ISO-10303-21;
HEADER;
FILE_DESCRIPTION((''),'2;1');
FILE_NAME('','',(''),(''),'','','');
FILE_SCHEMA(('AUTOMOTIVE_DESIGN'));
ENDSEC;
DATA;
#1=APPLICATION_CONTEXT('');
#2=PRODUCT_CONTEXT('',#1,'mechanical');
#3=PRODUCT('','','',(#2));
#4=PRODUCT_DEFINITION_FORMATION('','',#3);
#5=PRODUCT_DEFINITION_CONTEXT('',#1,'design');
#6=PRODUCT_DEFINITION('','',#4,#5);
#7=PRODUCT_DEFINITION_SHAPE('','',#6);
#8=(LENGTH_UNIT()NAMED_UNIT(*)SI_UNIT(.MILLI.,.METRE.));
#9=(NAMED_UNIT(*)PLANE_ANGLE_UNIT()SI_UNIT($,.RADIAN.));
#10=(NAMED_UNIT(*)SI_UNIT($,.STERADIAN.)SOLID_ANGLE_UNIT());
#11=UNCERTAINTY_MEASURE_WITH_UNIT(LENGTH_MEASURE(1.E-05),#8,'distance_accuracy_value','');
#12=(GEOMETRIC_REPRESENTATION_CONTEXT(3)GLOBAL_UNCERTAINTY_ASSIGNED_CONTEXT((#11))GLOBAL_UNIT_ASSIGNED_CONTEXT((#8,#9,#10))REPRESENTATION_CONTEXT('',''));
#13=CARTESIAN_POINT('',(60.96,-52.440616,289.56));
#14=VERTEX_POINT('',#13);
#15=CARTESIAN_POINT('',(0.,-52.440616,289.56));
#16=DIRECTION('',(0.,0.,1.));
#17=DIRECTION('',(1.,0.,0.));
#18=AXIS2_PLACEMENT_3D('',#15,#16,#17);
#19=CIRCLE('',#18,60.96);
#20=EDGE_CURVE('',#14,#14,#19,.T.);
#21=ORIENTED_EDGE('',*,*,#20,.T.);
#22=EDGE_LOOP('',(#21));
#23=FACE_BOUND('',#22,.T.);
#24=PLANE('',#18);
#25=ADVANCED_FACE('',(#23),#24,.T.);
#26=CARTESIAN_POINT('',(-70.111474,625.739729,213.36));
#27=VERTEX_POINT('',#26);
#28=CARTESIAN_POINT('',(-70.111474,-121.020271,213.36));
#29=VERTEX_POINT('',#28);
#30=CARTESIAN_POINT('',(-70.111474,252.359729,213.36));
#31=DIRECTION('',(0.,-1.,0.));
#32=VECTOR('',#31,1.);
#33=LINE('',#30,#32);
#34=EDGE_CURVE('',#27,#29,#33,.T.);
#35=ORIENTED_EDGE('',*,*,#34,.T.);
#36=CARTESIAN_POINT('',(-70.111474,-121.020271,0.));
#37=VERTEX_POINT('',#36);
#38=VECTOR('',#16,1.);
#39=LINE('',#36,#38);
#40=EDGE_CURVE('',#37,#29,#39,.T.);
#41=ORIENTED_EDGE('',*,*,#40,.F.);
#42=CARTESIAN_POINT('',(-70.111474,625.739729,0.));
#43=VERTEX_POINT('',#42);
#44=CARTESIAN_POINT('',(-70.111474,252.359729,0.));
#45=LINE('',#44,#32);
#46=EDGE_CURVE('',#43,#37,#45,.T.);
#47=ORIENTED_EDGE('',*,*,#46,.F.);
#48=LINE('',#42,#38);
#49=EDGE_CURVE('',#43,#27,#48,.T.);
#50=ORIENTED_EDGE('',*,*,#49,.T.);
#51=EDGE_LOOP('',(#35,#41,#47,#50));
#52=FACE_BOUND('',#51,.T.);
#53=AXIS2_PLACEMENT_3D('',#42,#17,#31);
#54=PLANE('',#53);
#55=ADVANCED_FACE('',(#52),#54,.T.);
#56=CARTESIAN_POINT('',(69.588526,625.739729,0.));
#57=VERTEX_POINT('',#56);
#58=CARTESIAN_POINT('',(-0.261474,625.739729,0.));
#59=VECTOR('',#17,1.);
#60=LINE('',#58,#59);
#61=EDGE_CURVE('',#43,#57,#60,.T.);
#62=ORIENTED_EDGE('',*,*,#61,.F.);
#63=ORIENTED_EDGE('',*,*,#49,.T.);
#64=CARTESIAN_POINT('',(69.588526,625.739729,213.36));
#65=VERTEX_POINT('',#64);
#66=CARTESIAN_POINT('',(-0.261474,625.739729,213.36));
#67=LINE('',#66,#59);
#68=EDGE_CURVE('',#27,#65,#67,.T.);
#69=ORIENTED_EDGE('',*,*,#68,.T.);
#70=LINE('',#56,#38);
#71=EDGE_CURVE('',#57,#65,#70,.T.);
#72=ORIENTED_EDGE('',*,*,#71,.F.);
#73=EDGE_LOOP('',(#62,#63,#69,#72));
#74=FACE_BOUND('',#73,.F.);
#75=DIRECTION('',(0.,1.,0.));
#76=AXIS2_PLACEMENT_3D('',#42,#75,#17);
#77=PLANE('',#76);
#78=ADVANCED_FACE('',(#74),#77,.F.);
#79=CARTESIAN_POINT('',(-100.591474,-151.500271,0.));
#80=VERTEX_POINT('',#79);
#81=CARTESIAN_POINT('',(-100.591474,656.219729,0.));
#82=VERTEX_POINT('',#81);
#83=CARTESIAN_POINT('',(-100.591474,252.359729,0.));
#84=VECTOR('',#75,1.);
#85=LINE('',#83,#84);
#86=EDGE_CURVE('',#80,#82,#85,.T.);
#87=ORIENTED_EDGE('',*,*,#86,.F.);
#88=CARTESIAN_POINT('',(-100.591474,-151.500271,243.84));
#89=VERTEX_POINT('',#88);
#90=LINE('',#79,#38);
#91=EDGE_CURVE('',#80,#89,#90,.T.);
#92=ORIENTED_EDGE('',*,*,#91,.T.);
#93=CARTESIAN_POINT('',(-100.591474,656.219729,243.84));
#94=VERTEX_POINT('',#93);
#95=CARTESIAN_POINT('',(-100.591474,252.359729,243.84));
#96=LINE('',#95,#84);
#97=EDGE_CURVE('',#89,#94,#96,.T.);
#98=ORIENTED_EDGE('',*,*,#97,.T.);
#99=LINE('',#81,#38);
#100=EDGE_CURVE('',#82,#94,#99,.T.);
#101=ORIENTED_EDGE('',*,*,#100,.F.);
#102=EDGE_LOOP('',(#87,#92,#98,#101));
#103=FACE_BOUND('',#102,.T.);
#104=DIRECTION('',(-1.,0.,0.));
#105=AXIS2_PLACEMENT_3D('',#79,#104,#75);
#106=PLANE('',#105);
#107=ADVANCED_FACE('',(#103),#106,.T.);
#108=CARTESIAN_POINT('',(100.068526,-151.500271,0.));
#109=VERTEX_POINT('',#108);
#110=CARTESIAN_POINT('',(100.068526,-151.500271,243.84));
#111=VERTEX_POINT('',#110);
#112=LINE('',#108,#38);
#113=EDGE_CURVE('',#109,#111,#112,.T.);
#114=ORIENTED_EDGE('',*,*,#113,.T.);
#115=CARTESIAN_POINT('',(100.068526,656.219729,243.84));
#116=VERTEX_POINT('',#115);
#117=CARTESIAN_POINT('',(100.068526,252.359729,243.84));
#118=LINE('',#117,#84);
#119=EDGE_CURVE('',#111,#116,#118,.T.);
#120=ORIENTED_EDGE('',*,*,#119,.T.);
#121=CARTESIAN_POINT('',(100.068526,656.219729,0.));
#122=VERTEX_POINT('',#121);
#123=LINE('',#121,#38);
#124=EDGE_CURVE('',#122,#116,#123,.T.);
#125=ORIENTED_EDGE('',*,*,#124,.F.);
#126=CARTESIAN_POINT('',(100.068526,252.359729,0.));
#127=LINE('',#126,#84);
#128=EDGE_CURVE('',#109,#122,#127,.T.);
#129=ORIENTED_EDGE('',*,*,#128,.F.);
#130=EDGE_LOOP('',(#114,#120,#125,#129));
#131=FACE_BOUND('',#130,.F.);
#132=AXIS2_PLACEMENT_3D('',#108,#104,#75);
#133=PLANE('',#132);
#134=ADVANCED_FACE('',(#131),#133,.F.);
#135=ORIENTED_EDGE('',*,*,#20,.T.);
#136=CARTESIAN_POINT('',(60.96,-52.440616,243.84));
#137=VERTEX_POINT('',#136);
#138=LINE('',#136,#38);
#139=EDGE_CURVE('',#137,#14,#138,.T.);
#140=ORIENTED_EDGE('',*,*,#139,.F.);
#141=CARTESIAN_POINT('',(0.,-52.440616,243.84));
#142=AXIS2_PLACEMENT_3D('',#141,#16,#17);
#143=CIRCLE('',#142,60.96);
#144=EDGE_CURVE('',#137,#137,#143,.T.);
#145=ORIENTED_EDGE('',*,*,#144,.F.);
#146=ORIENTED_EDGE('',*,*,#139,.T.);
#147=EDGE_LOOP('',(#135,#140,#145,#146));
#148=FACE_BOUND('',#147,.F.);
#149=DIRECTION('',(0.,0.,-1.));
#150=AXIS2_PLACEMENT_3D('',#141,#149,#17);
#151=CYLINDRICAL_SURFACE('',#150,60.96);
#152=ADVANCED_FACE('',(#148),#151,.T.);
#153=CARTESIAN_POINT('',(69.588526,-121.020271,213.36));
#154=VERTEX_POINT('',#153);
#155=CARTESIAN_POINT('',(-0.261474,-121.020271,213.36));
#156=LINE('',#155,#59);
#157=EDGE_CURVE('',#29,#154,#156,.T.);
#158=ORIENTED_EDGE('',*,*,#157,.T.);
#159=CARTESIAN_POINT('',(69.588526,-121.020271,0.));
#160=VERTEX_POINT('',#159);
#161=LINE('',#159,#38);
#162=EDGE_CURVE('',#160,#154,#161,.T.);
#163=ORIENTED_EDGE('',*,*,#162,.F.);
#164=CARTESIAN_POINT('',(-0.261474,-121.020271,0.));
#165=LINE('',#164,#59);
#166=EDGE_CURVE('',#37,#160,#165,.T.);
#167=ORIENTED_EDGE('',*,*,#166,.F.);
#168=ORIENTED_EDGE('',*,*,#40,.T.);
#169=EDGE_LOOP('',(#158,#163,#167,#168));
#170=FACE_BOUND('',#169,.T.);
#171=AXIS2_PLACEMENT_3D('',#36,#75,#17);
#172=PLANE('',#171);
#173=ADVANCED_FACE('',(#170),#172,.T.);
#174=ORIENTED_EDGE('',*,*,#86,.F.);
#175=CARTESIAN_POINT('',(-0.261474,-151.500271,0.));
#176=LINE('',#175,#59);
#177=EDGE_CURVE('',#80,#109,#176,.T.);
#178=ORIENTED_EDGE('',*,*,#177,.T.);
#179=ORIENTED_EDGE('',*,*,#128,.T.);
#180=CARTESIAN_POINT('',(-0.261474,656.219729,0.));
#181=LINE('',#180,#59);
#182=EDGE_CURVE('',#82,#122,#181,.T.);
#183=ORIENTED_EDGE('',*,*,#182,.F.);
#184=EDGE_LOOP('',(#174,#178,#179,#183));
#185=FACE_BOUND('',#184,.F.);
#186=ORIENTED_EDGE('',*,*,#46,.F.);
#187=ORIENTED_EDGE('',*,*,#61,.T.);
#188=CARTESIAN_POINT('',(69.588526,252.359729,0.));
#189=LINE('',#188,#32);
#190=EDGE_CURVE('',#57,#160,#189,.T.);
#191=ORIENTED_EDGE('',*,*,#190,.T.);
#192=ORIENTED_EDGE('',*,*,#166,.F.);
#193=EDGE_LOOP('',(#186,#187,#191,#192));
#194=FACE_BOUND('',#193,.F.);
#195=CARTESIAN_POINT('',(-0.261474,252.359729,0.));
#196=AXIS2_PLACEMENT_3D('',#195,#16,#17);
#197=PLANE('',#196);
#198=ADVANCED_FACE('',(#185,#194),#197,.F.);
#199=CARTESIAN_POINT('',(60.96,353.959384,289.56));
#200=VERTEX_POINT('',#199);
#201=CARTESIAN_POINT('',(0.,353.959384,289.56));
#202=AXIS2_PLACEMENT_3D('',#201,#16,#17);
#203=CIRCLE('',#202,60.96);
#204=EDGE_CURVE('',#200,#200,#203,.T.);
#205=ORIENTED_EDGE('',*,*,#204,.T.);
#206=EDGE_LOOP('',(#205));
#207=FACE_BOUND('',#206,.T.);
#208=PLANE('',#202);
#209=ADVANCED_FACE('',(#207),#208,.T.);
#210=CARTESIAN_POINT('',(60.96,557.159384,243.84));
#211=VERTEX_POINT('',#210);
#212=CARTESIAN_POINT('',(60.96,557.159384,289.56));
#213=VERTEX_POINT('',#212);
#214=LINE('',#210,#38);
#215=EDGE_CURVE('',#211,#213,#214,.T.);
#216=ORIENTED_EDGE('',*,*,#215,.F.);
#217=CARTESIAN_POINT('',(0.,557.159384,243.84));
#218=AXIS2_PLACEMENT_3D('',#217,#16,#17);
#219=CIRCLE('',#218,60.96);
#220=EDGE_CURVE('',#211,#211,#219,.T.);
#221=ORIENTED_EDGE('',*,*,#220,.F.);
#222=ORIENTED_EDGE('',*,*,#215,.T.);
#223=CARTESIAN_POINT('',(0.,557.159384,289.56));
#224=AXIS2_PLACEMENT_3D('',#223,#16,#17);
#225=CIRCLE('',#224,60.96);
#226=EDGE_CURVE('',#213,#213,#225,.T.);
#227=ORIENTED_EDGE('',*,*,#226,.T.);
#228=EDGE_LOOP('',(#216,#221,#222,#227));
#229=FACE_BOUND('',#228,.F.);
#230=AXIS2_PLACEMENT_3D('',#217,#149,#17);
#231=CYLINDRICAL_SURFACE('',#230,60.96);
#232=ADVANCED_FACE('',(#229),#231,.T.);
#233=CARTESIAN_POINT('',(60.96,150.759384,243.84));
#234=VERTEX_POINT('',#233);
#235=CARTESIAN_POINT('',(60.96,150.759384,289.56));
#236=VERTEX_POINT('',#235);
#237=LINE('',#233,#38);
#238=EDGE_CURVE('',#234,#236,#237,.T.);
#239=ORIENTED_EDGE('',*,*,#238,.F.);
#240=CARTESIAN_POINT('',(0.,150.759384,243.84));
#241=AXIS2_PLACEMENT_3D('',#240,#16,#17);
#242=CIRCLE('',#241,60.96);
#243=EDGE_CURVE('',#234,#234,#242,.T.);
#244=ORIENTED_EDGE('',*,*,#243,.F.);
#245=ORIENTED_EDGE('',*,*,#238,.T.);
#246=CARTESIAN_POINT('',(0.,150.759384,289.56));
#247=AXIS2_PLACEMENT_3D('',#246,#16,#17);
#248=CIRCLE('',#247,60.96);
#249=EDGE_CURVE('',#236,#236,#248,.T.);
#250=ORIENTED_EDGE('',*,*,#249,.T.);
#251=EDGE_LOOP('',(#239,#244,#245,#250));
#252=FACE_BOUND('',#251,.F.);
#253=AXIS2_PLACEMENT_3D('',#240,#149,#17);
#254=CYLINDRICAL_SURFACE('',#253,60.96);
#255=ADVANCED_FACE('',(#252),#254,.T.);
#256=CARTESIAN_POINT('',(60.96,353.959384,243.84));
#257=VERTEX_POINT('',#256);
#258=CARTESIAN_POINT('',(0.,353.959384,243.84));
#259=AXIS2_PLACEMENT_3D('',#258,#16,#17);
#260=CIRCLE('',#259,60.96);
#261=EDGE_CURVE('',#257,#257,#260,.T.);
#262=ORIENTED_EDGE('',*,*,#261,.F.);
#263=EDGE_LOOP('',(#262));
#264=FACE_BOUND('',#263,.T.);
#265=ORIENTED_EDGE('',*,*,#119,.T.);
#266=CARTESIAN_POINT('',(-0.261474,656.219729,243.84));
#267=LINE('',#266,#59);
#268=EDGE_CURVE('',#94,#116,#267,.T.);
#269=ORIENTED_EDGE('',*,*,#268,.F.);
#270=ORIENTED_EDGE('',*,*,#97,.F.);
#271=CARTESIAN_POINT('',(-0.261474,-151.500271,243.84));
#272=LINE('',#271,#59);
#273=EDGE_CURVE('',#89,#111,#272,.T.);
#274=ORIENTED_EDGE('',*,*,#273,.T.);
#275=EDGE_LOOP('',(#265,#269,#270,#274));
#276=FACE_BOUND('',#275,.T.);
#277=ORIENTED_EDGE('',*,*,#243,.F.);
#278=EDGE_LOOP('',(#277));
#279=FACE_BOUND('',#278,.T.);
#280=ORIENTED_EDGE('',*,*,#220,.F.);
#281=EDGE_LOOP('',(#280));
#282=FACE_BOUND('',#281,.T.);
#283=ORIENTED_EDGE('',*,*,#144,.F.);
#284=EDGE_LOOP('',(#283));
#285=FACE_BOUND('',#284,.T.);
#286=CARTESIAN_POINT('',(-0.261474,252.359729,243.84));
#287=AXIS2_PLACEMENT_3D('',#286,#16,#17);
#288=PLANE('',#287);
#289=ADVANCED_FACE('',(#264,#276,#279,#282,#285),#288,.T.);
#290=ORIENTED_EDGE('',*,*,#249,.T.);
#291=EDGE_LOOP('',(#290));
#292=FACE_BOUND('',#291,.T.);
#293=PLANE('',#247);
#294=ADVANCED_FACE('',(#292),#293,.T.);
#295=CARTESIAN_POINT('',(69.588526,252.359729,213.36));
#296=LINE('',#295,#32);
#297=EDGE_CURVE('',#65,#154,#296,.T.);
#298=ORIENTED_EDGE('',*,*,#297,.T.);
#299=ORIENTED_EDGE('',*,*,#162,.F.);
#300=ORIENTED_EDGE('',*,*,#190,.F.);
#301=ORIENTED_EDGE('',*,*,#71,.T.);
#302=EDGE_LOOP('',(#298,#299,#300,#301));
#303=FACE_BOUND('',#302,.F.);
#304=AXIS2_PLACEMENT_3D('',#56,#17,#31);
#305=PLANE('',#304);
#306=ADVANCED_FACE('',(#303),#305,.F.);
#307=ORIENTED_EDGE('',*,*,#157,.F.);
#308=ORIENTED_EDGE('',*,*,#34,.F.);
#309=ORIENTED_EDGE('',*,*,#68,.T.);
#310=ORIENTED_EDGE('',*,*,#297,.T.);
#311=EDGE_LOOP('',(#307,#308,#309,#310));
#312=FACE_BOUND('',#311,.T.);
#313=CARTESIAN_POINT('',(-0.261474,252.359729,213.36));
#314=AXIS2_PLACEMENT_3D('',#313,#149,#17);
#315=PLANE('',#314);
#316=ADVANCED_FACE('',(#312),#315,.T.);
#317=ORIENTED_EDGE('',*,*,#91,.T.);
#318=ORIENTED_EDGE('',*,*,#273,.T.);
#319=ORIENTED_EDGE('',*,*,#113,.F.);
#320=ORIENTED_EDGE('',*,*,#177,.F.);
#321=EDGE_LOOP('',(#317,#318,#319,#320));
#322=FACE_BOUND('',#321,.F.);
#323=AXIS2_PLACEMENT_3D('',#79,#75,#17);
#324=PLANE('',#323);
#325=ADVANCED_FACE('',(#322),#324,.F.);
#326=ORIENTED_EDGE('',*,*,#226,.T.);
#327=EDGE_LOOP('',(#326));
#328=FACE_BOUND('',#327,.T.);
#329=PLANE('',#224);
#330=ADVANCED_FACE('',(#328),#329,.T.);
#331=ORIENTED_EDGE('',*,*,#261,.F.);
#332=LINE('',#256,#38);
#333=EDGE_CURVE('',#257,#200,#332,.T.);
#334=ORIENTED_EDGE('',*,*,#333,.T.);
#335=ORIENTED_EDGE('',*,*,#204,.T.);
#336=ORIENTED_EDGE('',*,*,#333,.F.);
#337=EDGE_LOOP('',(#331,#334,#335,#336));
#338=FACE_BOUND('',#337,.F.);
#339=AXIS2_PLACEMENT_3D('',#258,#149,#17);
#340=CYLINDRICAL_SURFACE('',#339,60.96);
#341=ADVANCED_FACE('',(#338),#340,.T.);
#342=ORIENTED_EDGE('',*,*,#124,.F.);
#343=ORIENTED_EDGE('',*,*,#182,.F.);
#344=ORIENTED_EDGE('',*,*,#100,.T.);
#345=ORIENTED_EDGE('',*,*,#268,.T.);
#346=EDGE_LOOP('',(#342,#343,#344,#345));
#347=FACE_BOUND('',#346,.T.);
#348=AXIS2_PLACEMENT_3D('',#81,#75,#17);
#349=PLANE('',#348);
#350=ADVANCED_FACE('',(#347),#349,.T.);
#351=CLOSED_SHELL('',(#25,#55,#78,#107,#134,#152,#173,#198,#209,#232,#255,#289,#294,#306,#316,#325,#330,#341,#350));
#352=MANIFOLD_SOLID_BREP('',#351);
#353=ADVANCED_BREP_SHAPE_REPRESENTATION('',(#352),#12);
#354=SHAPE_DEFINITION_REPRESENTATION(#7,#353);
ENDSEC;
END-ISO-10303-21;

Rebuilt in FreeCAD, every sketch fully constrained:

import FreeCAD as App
import Part
import Sketcher
from FreeCAD import Vector
Q = App.Units.Quantity


def add_polygon(sketch, points):
    """Adds a closed chain of lines whose ends are joined by coincident constraints."""
    first, n = sketch.GeometryCount, len(points)
    for a, b in zip(points, points[1:] + points[:1]):
        sketch.addGeometry(Part.LineSegment(App.Vector(*a, 0), App.Vector(*b, 0)), False)
    for i in range(n):
        sketch.addConstraint(Sketcher.Constraint("Coincident", first + i, 2, first + (i + 1) % n, 1))

doc = App.newDocument("Part")
body = doc.addObject("PartDesign::Body", "Body")

# Sketch on XY plane
sketch1 = body.newObject("Sketcher::SketchObject", "Sketch")
sketch1.AttachmentSupport = (doc.getObject("XY_Plane"), [""])
sketch1.MapMode = "FlatFace"
add_polygon(sketch1, [(-101, 656), (-101, -152), (100, -152), (100, 656)])  # lines 0-3
sketch1.addConstraint(Sketcher.Constraint("Vertical", 0))
sketch1.addConstraint(Sketcher.Constraint("Horizontal", 1))
sketch1.addConstraint(Sketcher.Constraint("Vertical", 2))
sketch1.addConstraint(Sketcher.Constraint("Horizontal", 3))
sketch1.addConstraint(Sketcher.Constraint("DistanceX", 1, 1, 1, 2, Q("7.9 in")))
sketch1.addConstraint(Sketcher.Constraint("DistanceY", 0, 2, 0, 1, Q("31.8 in")))
sketch1.addConstraint(Sketcher.Constraint("DistanceY", 0, 2, -1, 1, 151.500271))
sketch1.addConstraint(Sketcher.Constraint("DistanceX", 0, 2, -1, 1, 100.591474))
pad1 = body.newObject("PartDesign::Pad", "Pad")
pad1.Profile = sketch1
pad1.Length = Q("9.6 in")

# Sketch on XY plane
sketch2 = body.newObject("Sketcher::SketchObject", "Sketch001")
sketch2.AttachmentSupport = (doc.getObject("XY_Plane"), [""])
sketch2.MapMode = "FlatFace"
sketch2.AttachmentOffset = App.Placement(Vector(0, 0, 9.6 * 25.4), App.Rotation())
sketch2.addGeometry(Part.Circle(Vector(0, -52, 0), Vector(0, 0, 1), 61), False)
sketch2.addGeometry(Part.Circle(Vector(0, 151, 0), Vector(0, 0, 1), 61), False)
sketch2.addGeometry(Part.Circle(Vector(0, 354, 0), Vector(0, 0, 1), 61), False)
sketch2.addGeometry(Part.Circle(Vector(0, 557, 0), Vector(0, 0, 1), 61), False)
sketch2.addConstraint(Sketcher.Constraint("Equal", 0, 1))
sketch2.addConstraint(Sketcher.Constraint("Equal", 1, 2))
sketch2.addConstraint(Sketcher.Constraint("Equal", 2, 3))
sketch2.addConstraint(Sketcher.Constraint("PointOnObject", 0, 3, -2))
sketch2.addConstraint(Sketcher.Constraint("PointOnObject", 1, 3, -2))
sketch2.addConstraint(Sketcher.Constraint("PointOnObject", 2, 3, -2))
sketch2.addConstraint(Sketcher.Constraint("PointOnObject", 3, 3, -2))
sketch2.addConstraint(Sketcher.Constraint("Diameter", 0, Q("4.8 in")))
sketch2.addConstraint(Sketcher.Constraint("DistanceY", 0, 3, 1, 3, Q("8 in")))
sketch2.addConstraint(Sketcher.Constraint("DistanceY", 1, 3, 2, 3, Q("8 in")))
sketch2.addConstraint(Sketcher.Constraint("DistanceY", 2, 3, 3, 3, Q("8 in")))
sketch2.addConstraint(Sketcher.Constraint("DistanceY", 0, 3, -1, 1, 52.440616))
pad2 = body.newObject("PartDesign::Pad", "Pad001")
pad2.Profile = sketch2
pad2.Length = Q("1.8 in")

# Sketch on XY plane
sketch3 = body.newObject("Sketcher::SketchObject", "Sketch002")
sketch3.AttachmentSupport = (doc.getObject("XY_Plane"), [""])
sketch3.MapMode = "FlatFace"
add_polygon(sketch3, [(-70, -121), (-70, 626), (70, 626), (70, -121)])  # lines 0-3
sketch3.addConstraint(Sketcher.Constraint("Vertical", 0))
sketch3.addConstraint(Sketcher.Constraint("Horizontal", 1))
sketch3.addConstraint(Sketcher.Constraint("Vertical", 2))
sketch3.addConstraint(Sketcher.Constraint("Horizontal", 3))
sketch3.addConstraint(Sketcher.Constraint("DistanceX", 1, 1, 1, 2, Q("5.5 in")))
sketch3.addConstraint(Sketcher.Constraint("DistanceY", 0, 1, 0, 2, Q("29.4 in")))
sketch3.addConstraint(Sketcher.Constraint("DistanceY", -1, 1, 0, 2, 625.739729))
sketch3.addConstraint(Sketcher.Constraint("DistanceX", 0, 2, -1, 1, 70.111474))
pocket1 = body.newObject("PartDesign::Pocket", "Pocket")
pocket1.Profile = sketch3
pocket1.Length = Q("8.4 in")
pocket1.Reversed = True

doc.recompute()
